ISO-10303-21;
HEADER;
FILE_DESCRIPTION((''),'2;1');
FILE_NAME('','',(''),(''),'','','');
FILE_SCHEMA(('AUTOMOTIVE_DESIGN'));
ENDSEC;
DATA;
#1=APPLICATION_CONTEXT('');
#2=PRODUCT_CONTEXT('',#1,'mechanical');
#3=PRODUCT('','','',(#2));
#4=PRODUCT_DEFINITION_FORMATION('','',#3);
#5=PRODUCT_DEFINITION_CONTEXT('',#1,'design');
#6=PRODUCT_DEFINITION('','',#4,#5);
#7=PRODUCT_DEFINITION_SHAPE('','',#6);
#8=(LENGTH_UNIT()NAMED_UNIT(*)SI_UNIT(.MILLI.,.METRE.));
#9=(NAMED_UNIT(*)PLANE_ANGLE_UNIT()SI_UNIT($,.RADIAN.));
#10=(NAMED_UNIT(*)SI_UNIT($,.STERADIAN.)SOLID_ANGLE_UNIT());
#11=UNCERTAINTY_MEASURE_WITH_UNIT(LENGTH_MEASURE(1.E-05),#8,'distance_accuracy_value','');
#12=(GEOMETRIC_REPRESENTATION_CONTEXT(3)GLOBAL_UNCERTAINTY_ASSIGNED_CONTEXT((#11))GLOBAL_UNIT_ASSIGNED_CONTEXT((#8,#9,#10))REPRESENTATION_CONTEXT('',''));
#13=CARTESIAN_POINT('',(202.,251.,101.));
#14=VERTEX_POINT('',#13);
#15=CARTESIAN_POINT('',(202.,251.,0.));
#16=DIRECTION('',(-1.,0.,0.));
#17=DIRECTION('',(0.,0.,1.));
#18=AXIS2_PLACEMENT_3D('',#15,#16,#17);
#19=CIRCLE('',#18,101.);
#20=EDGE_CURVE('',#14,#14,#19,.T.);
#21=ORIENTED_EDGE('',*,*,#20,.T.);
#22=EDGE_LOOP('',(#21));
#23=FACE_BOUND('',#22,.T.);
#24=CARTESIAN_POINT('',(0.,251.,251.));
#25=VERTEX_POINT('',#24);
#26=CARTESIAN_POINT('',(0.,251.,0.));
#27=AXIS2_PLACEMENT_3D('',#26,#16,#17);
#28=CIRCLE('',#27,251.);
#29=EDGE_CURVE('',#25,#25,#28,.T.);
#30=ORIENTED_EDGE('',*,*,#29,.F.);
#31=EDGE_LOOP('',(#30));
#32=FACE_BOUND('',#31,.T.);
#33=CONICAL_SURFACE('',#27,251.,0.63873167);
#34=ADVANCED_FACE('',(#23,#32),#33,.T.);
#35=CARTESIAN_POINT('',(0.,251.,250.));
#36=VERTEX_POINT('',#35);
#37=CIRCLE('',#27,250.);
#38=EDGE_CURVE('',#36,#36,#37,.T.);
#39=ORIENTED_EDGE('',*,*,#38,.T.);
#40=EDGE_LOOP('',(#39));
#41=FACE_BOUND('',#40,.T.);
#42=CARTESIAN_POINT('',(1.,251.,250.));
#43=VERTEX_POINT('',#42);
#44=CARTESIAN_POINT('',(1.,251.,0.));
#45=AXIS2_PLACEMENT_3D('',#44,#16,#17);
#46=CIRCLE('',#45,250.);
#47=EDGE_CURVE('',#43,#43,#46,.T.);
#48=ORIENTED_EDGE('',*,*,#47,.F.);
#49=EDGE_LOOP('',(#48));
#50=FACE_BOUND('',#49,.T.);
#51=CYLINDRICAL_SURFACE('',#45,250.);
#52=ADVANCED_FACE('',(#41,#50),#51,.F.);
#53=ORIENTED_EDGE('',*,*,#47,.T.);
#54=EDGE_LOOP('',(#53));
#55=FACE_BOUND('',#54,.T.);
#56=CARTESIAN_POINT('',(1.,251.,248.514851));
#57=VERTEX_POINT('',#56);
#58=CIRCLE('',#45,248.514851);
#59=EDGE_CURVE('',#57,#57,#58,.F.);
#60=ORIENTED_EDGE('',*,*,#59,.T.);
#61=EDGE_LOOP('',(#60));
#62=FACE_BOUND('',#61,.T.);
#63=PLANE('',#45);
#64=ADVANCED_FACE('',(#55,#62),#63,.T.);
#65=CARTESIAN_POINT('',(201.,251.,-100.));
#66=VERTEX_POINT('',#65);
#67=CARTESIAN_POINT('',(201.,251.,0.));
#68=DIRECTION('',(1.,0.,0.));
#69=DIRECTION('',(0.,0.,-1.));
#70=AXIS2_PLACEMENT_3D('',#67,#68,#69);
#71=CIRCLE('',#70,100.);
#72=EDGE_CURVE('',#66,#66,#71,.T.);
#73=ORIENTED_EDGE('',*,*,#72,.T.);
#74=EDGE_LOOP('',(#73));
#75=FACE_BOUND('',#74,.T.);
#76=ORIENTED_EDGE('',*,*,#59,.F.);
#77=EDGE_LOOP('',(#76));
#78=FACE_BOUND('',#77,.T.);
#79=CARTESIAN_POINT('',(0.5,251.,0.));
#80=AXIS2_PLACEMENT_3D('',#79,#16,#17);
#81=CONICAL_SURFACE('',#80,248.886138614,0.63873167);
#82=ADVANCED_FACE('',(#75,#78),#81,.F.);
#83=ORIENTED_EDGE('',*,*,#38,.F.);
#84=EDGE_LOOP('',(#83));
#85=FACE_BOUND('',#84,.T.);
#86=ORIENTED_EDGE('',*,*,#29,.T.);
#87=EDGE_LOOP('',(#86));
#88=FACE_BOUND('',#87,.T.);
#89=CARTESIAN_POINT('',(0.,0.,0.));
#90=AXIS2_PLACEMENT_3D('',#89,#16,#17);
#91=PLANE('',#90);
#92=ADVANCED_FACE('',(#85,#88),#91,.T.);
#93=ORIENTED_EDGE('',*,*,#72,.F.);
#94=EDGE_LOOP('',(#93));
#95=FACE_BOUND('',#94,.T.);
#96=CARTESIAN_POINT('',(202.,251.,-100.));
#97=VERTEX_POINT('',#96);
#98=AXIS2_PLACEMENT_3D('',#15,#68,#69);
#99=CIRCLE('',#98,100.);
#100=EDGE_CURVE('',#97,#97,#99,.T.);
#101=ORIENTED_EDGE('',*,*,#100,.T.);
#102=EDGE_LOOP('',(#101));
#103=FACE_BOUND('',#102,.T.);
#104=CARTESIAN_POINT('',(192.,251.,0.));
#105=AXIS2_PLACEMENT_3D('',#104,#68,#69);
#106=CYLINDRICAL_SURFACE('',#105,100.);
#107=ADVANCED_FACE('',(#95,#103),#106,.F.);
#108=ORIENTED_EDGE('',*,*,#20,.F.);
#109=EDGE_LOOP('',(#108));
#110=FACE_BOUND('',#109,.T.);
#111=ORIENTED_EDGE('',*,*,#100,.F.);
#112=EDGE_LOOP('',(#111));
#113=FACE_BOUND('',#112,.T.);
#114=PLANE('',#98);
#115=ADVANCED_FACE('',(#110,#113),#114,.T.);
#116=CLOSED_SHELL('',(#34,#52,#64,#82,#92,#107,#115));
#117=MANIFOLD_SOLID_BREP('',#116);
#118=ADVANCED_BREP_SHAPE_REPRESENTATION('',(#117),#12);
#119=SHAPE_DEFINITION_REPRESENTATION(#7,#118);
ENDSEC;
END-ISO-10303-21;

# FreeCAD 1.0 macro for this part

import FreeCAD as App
import Part
import Sketcher


def add_polygon(sketch, points):
    """Adds a closed chain of lines whose ends are joined by coincident constraints."""
    first, n = sketch.GeometryCount, len(points)
    for a, b in zip(points, points[1:] + points[:1]):
        sketch.addGeometry(Part.LineSegment(App.Vector(*a, 0), App.Vector(*b, 0)), False)
    for i in range(n):
        sketch.addConstraint(Sketcher.Constraint("Coincident", first + i, 2, first + (i + 1) % n, 1))

doc = App.newDocument("Part")
body = doc.addObject("PartDesign::Body", "Body")
body.AllowCompound = True

sketch1 = body.newObject("Sketcher::SketchObject", "Sketch")
sketch1.AttachmentSupport = (doc.getObject("XY_Plane"), [""])
sketch1.MapMode = "FlatFace"
add_polygon(sketch1, [(0, 251), (0, 0), (202, 150), (202, 251)])
add_polygon(sketch1, [(201, 250), (201, 151), (0, 2), (1, 250)])
sketch1.addGeometry(Part.LineSegment(App.Vector(0, 251, 0), App.Vector(202, 251, 0)), True)
sketch1.addConstraint(Sketcher.Constraint("Vertical", 0))
sketch1.addConstraint(Sketcher.Constraint("Vertical", 2))
sketch1.addConstraint(Sketcher.Constraint("Horizontal", 3))
sketch1.addConstraint(Sketcher.Constraint("Vertical", 4))
sketch1.addConstraint(Sketcher.Constraint("Horizontal", 7))
sketch1.addConstraint(Sketcher.Constraint("Horizontal", 8))
sketch1.addConstraint(Sketcher.Constraint("Coincident", 0, 2, -1, 1))
sketch1.addConstraint(Sketcher.Constraint("Coincident", 8, 1, 3, 2))
sketch1.addConstraint(Sketcher.Constraint("Parallel", 1, 5))
sketch1.addConstraint(Sketcher.Constraint("Vertical", 1, 2, 8, 2))
sketch1.addConstraint(Sketcher.Constraint("DistanceX", 3, 2, 3, 1, 202.0))
sketch1.addConstraint(Sketcher.Constraint("DistanceX", 7, 1, 7, 2, 200.0))
sketch1.addConstraint(Sketcher.Constraint("DistanceY", 0, 2, 0, 1, 251.0))
sketch1.addConstraint(Sketcher.Constraint("DistanceY", 2, 1, 2, 2, 101.0))
sketch1.addConstraint(Sketcher.Constraint("DistanceX", -1, 1, 4, 2, 201.0))
sketch1.addConstraint(Sketcher.Constraint("DistanceY", -1, 1, 4, 2, 151.0))
sketch1.addConstraint(Sketcher.Constraint("DistanceX", -1, 1, 5, 2, 0.5))
sketch1.addConstraint(Sketcher.Constraint("Distance", 6, 247.644858))
revolution = body.newObject("PartDesign::Revolution", "Revolution")
revolution.Profile = sketch1
revolution.ReferenceAxis = (sketch1, ["Axis0"])
revolution.Angle = 360

sketch2 = body.newObject("Sketcher::SketchObject", "Sketch001")
sketch2.AttachmentSupport = (doc.getObject("YZ_Plane"), [""])
sketch2.MapMode = "FlatFace"
sketch2.AttachmentOffset = App.Placement(App.Vector(0, 0, 202), App.Rotation())
sketch2.addGeometry(Part.Circle(App.Vector(251, 0, 0), App.Vector(0, 0, 1), 100), False)
sketch2.addConstraint(Sketcher.Constraint("PointOnObject", 0, 3, -1))
sketch2.addConstraint(Sketcher.Constraint("Diameter", 0, 200.0))
sketch2.addConstraint(Sketcher.Constraint("DistanceX", -1, 1, 0, 3, 251.0))
pocket1 = body.newObject("PartDesign::Pocket", "Pocket")
pocket1.Profile = sketch2
pocket1.Length = 10

sketch3 = body.newObject("Sketcher::SketchObject", "Sketch002")
sketch3.AttachmentSupport = (doc.getObject("YZ_Plane"), [""])
sketch3.MapMode = "FlatFace"
sketch3.addGeometry(Part.Circle(App.Vector(251, 0, 0), App.Vector(0, 0, 1), 250), False)
sketch3.addConstraint(Sketcher.Constraint("PointOnObject", 0, 3, -1))
sketch3.addConstraint(Sketcher.Constraint("Diameter", 0, 500.0))
sketch3.addConstraint(Sketcher.Constraint("DistanceX", -1, 1, 0, 3, 251.0))
pocket2 = body.newObject("PartDesign::Pocket", "Pocket001")
pocket2.Profile = sketch3
pocket2.Length = 1
pocket2.Reversed = True

sketch4 = body.newObject("Sketcher::SketchObject", "Sketch003")
sketch4.AttachmentSupport = (doc.getObject("YZ_Plane"), [""])
sketch4.MapMode = "FlatFace"
sketch4.AttachmentOffset = App.Placement(App.Vector(0, 0, 1), App.Rotation())
sketch4.addGeometry(Part.Circle(App.Vector(251, 0, 0), App.Vector(0, 0, 1), 1.2), False)
sketch4.addConstraint(Sketcher.Constraint("PointOnObject", 0, 3, -1))
sketch4.addConstraint(Sketcher.Constraint("DistanceX", -1, 1, 0, 3, 251.0))
sketch4.addConstraint(Sketcher.Constraint("Diameter", 0, 2.483571))
pocket3 = body.newObject("PartDesign::Pocket", "Pocket002")
pocket3.Profile = sketch4
pocket3.Length = 201
pocket3.Reversed = True

doc.recompute()
